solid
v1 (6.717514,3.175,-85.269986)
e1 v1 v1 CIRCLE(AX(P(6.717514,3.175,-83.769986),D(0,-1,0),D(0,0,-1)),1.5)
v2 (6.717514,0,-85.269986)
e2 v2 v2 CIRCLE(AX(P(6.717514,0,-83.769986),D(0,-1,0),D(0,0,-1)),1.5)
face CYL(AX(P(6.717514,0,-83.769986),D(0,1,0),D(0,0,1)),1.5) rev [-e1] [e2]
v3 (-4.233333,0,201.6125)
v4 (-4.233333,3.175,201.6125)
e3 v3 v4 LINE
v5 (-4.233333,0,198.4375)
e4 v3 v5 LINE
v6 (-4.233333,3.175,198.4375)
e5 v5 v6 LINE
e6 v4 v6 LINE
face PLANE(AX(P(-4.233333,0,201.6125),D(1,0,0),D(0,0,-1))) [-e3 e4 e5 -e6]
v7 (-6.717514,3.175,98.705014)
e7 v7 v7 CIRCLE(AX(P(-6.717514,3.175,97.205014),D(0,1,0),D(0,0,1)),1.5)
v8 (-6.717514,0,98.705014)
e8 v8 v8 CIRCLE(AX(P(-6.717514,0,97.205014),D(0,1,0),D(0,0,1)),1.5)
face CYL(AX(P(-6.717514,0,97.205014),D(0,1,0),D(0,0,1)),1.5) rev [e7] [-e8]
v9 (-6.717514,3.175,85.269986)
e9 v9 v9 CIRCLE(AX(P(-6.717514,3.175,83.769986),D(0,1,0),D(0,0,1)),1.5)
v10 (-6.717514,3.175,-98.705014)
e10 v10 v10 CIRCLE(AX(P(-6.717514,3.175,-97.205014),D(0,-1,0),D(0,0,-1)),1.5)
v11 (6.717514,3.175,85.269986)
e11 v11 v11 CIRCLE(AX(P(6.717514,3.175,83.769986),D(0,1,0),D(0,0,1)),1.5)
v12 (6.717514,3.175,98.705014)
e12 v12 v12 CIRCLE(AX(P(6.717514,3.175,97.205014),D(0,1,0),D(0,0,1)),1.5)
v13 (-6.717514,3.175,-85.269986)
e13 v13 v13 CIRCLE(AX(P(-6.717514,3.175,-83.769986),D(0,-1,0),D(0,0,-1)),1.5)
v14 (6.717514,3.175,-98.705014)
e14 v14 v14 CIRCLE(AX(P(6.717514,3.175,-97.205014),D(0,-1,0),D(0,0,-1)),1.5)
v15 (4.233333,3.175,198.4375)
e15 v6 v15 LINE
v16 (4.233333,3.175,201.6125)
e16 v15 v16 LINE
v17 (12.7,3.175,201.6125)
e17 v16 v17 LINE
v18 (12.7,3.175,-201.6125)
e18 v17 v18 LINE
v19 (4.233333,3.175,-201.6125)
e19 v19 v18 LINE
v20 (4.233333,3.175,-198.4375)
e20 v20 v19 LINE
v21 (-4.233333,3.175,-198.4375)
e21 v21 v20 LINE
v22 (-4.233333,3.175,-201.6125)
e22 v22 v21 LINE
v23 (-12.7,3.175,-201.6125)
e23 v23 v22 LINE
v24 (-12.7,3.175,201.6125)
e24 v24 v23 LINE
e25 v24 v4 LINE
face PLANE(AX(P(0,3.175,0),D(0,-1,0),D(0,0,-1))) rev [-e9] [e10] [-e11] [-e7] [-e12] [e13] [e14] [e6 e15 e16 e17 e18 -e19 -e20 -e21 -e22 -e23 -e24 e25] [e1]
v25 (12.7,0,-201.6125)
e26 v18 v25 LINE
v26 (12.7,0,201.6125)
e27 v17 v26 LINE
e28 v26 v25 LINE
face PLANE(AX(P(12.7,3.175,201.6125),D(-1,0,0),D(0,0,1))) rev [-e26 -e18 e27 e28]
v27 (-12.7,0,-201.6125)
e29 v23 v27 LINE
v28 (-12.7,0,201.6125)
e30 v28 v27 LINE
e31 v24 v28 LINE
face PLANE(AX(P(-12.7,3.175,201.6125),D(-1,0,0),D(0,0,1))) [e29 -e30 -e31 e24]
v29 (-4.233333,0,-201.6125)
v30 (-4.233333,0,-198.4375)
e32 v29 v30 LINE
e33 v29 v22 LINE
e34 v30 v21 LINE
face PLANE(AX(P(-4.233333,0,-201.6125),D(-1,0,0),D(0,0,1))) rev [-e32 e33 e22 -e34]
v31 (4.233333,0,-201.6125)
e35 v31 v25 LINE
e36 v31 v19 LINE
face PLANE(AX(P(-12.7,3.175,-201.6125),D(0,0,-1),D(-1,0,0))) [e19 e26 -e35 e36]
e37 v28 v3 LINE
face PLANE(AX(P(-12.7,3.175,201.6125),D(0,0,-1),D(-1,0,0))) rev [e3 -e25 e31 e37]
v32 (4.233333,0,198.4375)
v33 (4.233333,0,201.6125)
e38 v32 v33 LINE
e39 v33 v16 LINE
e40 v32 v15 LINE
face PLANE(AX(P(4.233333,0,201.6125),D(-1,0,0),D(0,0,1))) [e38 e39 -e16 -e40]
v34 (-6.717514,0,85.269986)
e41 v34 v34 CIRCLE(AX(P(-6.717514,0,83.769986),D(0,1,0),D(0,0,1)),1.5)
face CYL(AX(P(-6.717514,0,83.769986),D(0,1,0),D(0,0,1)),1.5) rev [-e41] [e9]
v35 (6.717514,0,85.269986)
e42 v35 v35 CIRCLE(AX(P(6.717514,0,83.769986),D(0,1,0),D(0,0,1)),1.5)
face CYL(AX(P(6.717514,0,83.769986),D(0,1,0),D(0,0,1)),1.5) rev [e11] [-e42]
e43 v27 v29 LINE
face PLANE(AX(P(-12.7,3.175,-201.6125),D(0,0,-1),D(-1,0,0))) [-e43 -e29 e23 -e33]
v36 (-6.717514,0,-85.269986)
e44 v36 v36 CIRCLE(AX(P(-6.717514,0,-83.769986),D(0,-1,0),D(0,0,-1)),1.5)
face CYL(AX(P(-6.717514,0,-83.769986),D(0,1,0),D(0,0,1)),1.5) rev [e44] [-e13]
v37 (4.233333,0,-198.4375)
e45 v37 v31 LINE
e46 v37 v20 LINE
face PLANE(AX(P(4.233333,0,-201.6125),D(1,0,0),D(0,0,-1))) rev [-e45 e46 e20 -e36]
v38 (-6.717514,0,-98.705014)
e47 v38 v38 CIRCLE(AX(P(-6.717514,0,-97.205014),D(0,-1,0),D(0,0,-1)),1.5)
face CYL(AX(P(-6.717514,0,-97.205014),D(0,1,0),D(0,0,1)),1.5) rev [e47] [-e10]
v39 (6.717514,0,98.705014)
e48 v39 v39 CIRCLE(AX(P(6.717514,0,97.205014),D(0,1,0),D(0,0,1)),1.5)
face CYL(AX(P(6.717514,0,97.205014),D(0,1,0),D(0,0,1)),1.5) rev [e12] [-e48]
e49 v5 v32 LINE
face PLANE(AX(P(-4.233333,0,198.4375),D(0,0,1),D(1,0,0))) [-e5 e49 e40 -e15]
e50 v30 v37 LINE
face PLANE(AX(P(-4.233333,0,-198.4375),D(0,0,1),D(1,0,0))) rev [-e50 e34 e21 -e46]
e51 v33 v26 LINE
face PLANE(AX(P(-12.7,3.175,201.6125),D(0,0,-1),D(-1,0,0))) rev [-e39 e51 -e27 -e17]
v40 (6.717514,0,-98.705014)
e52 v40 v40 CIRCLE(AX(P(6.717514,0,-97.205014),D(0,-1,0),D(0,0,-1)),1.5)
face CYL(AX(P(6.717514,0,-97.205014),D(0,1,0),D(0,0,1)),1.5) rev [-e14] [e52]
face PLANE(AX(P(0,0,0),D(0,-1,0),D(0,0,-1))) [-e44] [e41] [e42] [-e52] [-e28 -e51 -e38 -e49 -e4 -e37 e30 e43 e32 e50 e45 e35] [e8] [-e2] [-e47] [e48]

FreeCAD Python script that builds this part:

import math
import FreeCAD as App
import Part
import Sketcher
Q = App.Units.Quantity


def add_polygon(sketch, points):
    """Adds a closed chain of lines whose ends are joined by coincident constraints."""
    first, n = sketch.GeometryCount, len(points)
    for a, b in zip(points, points[1:] + points[:1]):
        sketch.addGeometry(Part.LineSegment(App.Vector(*a, 0), App.Vector(*b, 0)), False)
    for i in range(n):
        sketch.addConstraint(Sketcher.Constraint("Coincident", first + i, 2, first + (i + 1) % n, 1))

doc = App.newDocument("Part")
params = doc.addObject("Spreadsheet::Sheet", "Params")
for row, (alias, value) in enumerate([
    ("sketch1_width", "1 in"),
    ("sketch1_height", "15.875 in"),
    ("pad1_length", "0.125 in"),
    ("sketch2_height", "0.125 in"),
    ("pocket1_length", "0.125 in"),
    ("pocket2_length", "0.125 in"),
], start=1):
    params.set(f"A{row}", alias)
    params.set(f"B{row}", "=" + value)
    params.setAlias(f"B{row}", alias)

body = doc.addObject("PartDesign::Body", "Body")

# Sketch on XZ plane
sketch1 = body.newObject("Sketcher::SketchObject", "Sketch")
sketch1.AttachmentSupport = (doc.getObject("XZ_Plane"), [""])
sketch1.MapMode = "FlatFace"
add_polygon(sketch1, [(-13, -202), (-13, 202), (13, 202), (13, -202)])  # lines 0-3
sketch1.addConstraint([
    Sketcher.Constraint("Vertical", 0),
    Sketcher.Constraint("Horizontal", 1),
    Sketcher.Constraint("Vertical", 2),
    Sketcher.Constraint("Horizontal", 3),
    Sketcher.Constraint("Symmetric", 0, 2, 2, 2, -1, 1),
    Sketcher.Constraint("DistanceX", 1, 1, 1, 2, Q("1 in")),
    Sketcher.Constraint("DistanceY", 0, 1, 0, 2, Q("15.875 in")),
])
sketch1.setExpression("Constraints[9]", "Params.sketch1_width")
sketch1.setExpression("Constraints[10]", "Params.sketch1_height")
pad1 = body.newObject("PartDesign::Pad", "Pad")
pad1.Profile = sketch1
pad1.setExpression("Length", "Params.pad1_length")
pad1.Reversed = True

# Sketch on XZ plane
sketch2 = body.newObject("Sketcher::SketchObject", "Sketch001")
sketch2.AttachmentSupport = (doc.getObject("XZ_Plane"), [""])
sketch2.MapMode = "FlatFace"
sketch2.AttachmentOffset = App.Placement(App.Vector(0, 0, -0.125 * 25.4), App.Rotation())
add_polygon(sketch2, [(-4.2, -201.6), (-4.2, -198.4), (4.2, -198.4), (4.2, -201.6)])  # lines 0-3
sketch2.addConstraint([
    Sketcher.Constraint("Vertical", 0),
    Sketcher.Constraint("Horizontal", 1),
    Sketcher.Constraint("Vertical", 2),
    Sketcher.Constraint("Horizontal", 3),
    Sketcher.Constraint("DistanceY", 0, 1, 0, 2, Q("0.125 in")),
    Sketcher.Constraint("DistanceY", 0, 2, -1, 1, Q("7.8125 in")),
    Sketcher.Constraint("DistanceX", 1, 1, 1, 2, 8.466667),
    Sketcher.Constraint("DistanceX", 0, 2, -1, 1, 4.233333),
])
sketch2.setExpression("Constraints[8]", "Params.sketch2_height")
pocket1 = body.newObject("PartDesign::Pocket", "Pocket")
pocket1.Profile = sketch2
pocket1.setExpression("Length", "Params.pocket1_length")
pocket1.Reversed = True
doc.recompute()

mirrored = body.newObject("PartDesign::Mirrored", "Mirrored")
mirrored.Originals = [pocket1]
mirrored.MirrorPlane = (doc.getObject("XY_Plane"), [""])
body.Tip = mirrored

# Sketch on XZ plane
sketch3 = body.newObject("Sketcher::SketchObject", "Sketch002")
sketch3.AttachmentSupport = (doc.getObject("XZ_Plane"), [""])
sketch3.MapMode = "FlatFace"
sketch3.AttachmentOffset = App.Placement(App.Vector(0, 0, -0.125 * 25.4), App.Rotation())
sketch3.addGeometry([
    Part.ArcOfCircle(Part.Circle(App.Vector(6.7, 83.8, 0), App.Vector(0, 0, 1), 1.5), math.radians(180), math.radians(360)),  # 0
    Part.ArcOfCircle(Part.Circle(App.Vector(6.7, 83.8, 0), App.Vector(0, 0, 1), 1.5), math.radians(90), math.radians(180)),  # 1
    Part.ArcOfCircle(Part.Circle(App.Vector(6.7, 83.8, 0), App.Vector(0, 0, 1), 1.5), math.radians(0), math.radians(90)),  # 2
    Part.ArcOfCircle(Part.Circle(App.Vector(-6.7, 83.8, 0), App.Vector(0, 0, 1), 1.5), math.radians(90), math.radians(360)),  # 3
    Part.ArcOfCircle(Part.Circle(App.Vector(-6.7, 83.8, 0), App.Vector(0, 0, 1), 1.5), math.radians(0), math.radians(90)),  # 4
    Part.ArcOfCircle(Part.Circle(App.Vector(-6.7, 97.2, 0), App.Vector(0, 0, 1), 1.5), math.radians(-90), math.radians(0)),  # 5
    Part.ArcOfCircle(Part.Circle(App.Vector(-6.7, 97.2, 0), App.Vector(0, 0, 1), 1.5), math.radians(0), math.radians(270)),  # 6
    Part.ArcOfCircle(Part.Circle(App.Vector(6.7, 97.2, 0), App.Vector(0, 0, 1), 1.5), math.radians(-90), math.radians(0)),  # 7
    Part.ArcOfCircle(Part.Circle(App.Vector(6.7, 97.2, 0), App.Vector(0, 0, 1), 1.5), math.radians(180), math.radians(270)),  # 8
    Part.ArcOfCircle(Part.Circle(App.Vector(6.7, 97.2, 0), App.Vector(0, 0, 1), 1.5), math.radians(0), math.radians(180)),  # 9
], False)
sketch3.addConstraint([
    Sketcher.Constraint("Tangent", 0, 1, 1, 2),
    Sketcher.Constraint("Tangent", 1, 1, 2, 2),
    Sketcher.Constraint("Tangent", 2, 1, 0, 2),
    Sketcher.Constraint("Tangent", 3, 1, 4, 2),
    Sketcher.Constraint("Coincident", 4, 1, 3, 2),
    Sketcher.Constraint("Tangent", 5, 1, 6, 2),
    Sketcher.Constraint("Coincident", 6, 1, 5, 2),
    Sketcher.Constraint("Tangent", 7, 1, 8, 2),
    Sketcher.Constraint("Tangent", 8, 1, 9, 2),
    Sketcher.Constraint("Tangent", 9, 1, 7, 2),
    Sketcher.Constraint("Equal", 2, 3),
    Sketcher.Constraint("Equal", 4, 5),
    Sketcher.Constraint("Equal", 6, 7),
    Sketcher.Constraint("Symmetric", 0, 3, 3, 3, -2),
    Sketcher.Constraint("Symmetric", 5, 3, 7, 3, -2),
    Sketcher.Constraint("Horizontal", 4, 3, 0, 1),
    Sketcher.Constraint("Horizontal", 0, 1, 2, 1),
    Sketcher.Constraint("Horizontal", 2, 1, 4, 1),
    Sketcher.Constraint("Horizontal", 9, 3, 6, 1),
    Sketcher.Constraint("Horizontal", 6, 1, 8, 1),
    Sketcher.Constraint("Horizontal", 8, 1, 9, 1),
    Sketcher.Constraint("Vertical", 4, 3, 5, 3),
    Sketcher.Constraint("Vertical", 9, 3, 1, 1),
    Sketcher.Constraint("Vertical", 6, 3, 3, 1),
    Sketcher.Constraint("Vertical", 3, 1, 5, 1),
    Sketcher.Constraint("Vertical", 1, 1, 7, 1),
    Sketcher.Constraint("Radius", 0, 1.5),
    Sketcher.Constraint("DistanceX", 3, 3, 1, 3, 13.435029),
    Sketcher.Constraint("DistanceY", 4, 3, 5, 3, 13.435029),
    Sketcher.Constraint("DistanceY", -1, 1, 0, 3, 83.769986),
])
pocket2 = body.newObject("PartDesign::Pocket", "Pocket001")
pocket2.Profile = sketch3
pocket2.setExpression("Length", "Params.pocket2_length")
pocket2.Reversed = True
doc.recompute()

mirrored2 = body.newObject("PartDesign::Mirrored", "Mirrored001")
mirrored2.Originals = [pocket2]
mirrored2.MirrorPlane = (doc.getObject("XY_Plane"), [""])
body.Tip = mirrored2

doc.recompute()
